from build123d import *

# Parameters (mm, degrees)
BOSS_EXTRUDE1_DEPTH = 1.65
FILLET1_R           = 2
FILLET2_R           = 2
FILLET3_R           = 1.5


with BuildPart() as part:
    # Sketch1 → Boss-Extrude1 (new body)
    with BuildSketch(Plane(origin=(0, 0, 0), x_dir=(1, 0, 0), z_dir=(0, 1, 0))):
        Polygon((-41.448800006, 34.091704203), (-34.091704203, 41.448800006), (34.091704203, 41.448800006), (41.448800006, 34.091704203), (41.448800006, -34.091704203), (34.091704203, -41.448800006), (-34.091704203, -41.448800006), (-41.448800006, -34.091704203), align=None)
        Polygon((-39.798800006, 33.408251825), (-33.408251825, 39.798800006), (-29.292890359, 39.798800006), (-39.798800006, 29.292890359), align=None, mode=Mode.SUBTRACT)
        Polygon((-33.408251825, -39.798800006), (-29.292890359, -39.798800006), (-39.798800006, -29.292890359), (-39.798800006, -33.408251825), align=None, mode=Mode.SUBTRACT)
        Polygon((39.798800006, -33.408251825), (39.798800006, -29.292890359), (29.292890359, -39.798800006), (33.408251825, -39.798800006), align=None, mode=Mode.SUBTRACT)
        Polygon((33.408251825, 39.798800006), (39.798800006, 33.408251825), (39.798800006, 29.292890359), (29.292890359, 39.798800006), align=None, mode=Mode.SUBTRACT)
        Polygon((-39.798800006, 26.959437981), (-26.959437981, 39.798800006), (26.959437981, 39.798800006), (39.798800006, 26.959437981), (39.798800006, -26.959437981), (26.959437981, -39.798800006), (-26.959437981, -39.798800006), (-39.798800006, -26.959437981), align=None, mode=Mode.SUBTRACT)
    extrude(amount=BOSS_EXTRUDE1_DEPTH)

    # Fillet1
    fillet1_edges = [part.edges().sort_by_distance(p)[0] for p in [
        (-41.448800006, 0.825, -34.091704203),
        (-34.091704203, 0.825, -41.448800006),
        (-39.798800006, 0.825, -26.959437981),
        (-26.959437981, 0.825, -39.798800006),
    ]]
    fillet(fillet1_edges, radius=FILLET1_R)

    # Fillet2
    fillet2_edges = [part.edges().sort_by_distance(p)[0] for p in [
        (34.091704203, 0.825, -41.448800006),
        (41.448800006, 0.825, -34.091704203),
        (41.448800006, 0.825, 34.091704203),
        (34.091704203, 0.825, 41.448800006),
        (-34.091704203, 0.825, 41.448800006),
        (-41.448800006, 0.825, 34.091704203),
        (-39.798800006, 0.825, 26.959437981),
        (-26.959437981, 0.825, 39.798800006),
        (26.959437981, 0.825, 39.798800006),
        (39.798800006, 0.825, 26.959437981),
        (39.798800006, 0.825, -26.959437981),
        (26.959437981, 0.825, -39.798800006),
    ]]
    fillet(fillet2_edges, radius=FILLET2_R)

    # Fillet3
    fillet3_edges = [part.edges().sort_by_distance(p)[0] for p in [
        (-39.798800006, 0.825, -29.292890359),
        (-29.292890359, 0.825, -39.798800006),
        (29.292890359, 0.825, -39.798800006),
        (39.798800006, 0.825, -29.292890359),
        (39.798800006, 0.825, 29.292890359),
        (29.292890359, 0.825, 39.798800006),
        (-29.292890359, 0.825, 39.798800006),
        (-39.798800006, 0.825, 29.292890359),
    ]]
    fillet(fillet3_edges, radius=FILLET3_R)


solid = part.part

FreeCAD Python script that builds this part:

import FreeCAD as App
import Part
import Sketcher
from FreeCAD import Vector
Q = App.Units.Quantity


def edges_at(feature, points):
    """Names of the edges that pass closest to the given points."""
    edges = feature.Shape.Edges
    near = lambda p: min(range(len(edges)), key=lambda i: edges[i].distToShape(Part.Vertex(*p))[0])
    return sorted({f"Edge{near(p) + 1}" for p in points})


def add_polygon(sketch, points):
    """Adds a closed chain of lines whose ends are joined by coincident constraints."""
    first, n = sketch.GeometryCount, len(points)
    for a, b in zip(points, points[1:] + points[:1]):
        sketch.addGeometry(Part.LineSegment(App.Vector(*a, 0), App.Vector(*b, 0)), False)
    for i in range(n):
        sketch.addConstraint(Sketcher.Constraint("Coincident", first + i, 2, first + (i + 1) % n, 1))

doc = App.newDocument("Part")
body = doc.addObject("PartDesign::Body", "Body")

# Sketch on XZ plane
sketch1 = doc.addObject("Sketcher::SketchObject", "Sketch")
body.addObject(sketch1)
sketch1.AttachmentSupport = (doc.XZ_Plane, [""])
sketch1.MapMode = "FlatFace"
add_polygon(sketch1, [(-34.1, -41.4), (-41.4, -34.1), (-41.4, 34.1), (-34.1, 41.4), (34.1, 41.4), (41.4, 34.1), (41.4, -34.1), (34.1, -41.4)])  # lines 0-7
add_polygon(sketch1, [(39.8, 33.4), (33.4, 39.8), (29.3, 39.8), (39.8, 29.3)])  # lines 8-11
add_polygon(sketch1, [(-33.4, 39.8), (-39.8, 33.4), (-39.8, 29.3), (-29.3, 39.8)])  # lines 12-15
add_polygon(sketch1, [(33.4, -39.8), (39.8, -33.4), (39.8, -29.3), (29.3, -39.8)])  # lines 16-19
add_polygon(sketch1, [(-39.8, -27), (-27, -39.8), (27, -39.8), (39.8, -27), (39.8, 27), (27, 39.8), (-27, 39.8), (-39.8, 27)])  # lines 20-27
add_polygon(sketch1, [(-39.8, -33.4), (-33.4, -39.8), (-29.3, -39.8), (-39.8, -29.3)])  # lines 28-31
sketch1.addConstraint(Sketcher.Constraint("Vertical", 1))
sketch1.addConstraint(Sketcher.Constraint("Horizontal", 3))
sketch1.addConstraint(Sketcher.Constraint("Vertical", 5))
sketch1.addConstraint(Sketcher.Constraint("Horizontal", 7))
sketch1.addConstraint(Sketcher.Constraint("Horizontal", 9))
sketch1.addConstraint(Sketcher.Constraint("Vertical", 11))
sketch1.addConstraint(Sketcher.Constraint("Vertical", 13))
sketch1.addConstraint(Sketcher.Constraint("Horizontal", 15))
sketch1.addConstraint(Sketcher.Constraint("Vertical", 17))
sketch1.addConstraint(Sketcher.Constraint("Horizontal", 19))
sketch1.addConstraint(Sketcher.Constraint("Horizontal", 21))
sketch1.addConstraint(Sketcher.Constraint("Vertical", 23))
sketch1.addConstraint(Sketcher.Constraint("Horizontal", 25))
sketch1.addConstraint(Sketcher.Constraint("Vertical", 27))
sketch1.addConstraint(Sketcher.Constraint("Horizontal", 29))
sketch1.addConstraint(Sketcher.Constraint("Vertical", 31))
sketch1.addConstraint(Sketcher.Constraint("Symmetric", 0, 2, 4, 2, -1, 1))
sketch1.addConstraint(Sketcher.Constraint("Symmetric", 2, 2, 6, 2, -1, 1))
sketch1.addConstraint(Sketcher.Constraint("Symmetric", 12, 2, 16, 2, -1, 1))
sketch1.addConstraint(Sketcher.Constraint("Symmetric", 14, 2, 18, 2, -1, 1))
sketch1.addConstraint(Sketcher.Constraint("Symmetric", 20, 2, 24, 2, -1, 1))
sketch1.addConstraint(Sketcher.Constraint("Symmetric", 22, 2, 26, 2, -1, 1))
sketch1.addConstraint(Sketcher.Constraint("Symmetric", 8, 2, 28, 2, -1, 1))
sketch1.addConstraint(Sketcher.Constraint("Symmetric", 10, 2, 30, 2, -1, 1))
sketch1.addConstraint(Sketcher.Constraint("Symmetric", 11, 2, 12, 2, -2))
sketch1.addConstraint(Sketcher.Constraint("Symmetric", 9, 2, 14, 2, -2))
sketch1.addConstraint(Sketcher.Constraint("Perpendicular", 0, 2))
sketch1.addConstraint(Sketcher.Constraint("Perpendicular", 2, 4))
sketch1.addConstraint(Sketcher.Constraint("Perpendicular", 4, 6))
sketch1.addConstraint(Sketcher.Constraint("Perpendicular", 6, 8))
sketch1.addConstraint(Sketcher.Constraint("Parallel", 8, 10))
sketch1.addConstraint(Sketcher.Constraint("Perpendicular", 10, 12))
sketch1.addConstraint(Sketcher.Constraint("Parallel", 12, 14))
sketch1.addConstraint(Sketcher.Constraint("Parallel", 14, 16))
sketch1.addConstraint(Sketcher.Constraint("Parallel", 16, 18))
sketch1.addConstraint(Sketcher.Constraint("Perpendicular", 18, 20))
sketch1.addConstraint(Sketcher.Constraint("Perpendicular", 20, 22))
sketch1.addConstraint(Sketcher.Constraint("Perpendicular", 22, 24))
sketch1.addConstraint(Sketcher.Constraint("Perpendicular", 24, 26))
sketch1.addConstraint(Sketcher.Constraint("Perpendicular", 26, 28))
sketch1.addConstraint(Sketcher.Constraint("Parallel", 28, 30))
sketch1.addConstraint(Sketcher.Constraint("Horizontal", 1, 2, 4, 2))
sketch1.addConstraint(Sketcher.Constraint("Horizontal", 10, 2, 13, 2))
sketch1.addConstraint(Sketcher.Constraint("Horizontal", 19, 2, 20, 2))
sketch1.addConstraint(Sketcher.Constraint("Horizontal", 23, 2, 26, 2))
sketch1.addConstraint(Sketcher.Constraint("Vertical", 17, 2, 22, 2))
sketch1.addConstraint(Sketcher.Constraint("Equal", 7, 1))
sketch1.addConstraint(Sketcher.Constraint("Equal", 25, 23))
sketch1.addConstraint(Sketcher.Constraint("DistanceY", 8, 2, 3, 2, Q("1.65 mm")))
sketch1.addConstraint(Sketcher.Constraint("Distance", 8, Q("9.0376 mm")))
sketch1.addConstraint(Sketcher.Constraint("Distance", 10, Q("14.8576 mm")))
sketch1.addConstraint(Sketcher.Constraint("Distance", 20, Q("18.1576 mm")))
sketch1.addConstraint(Sketcher.Constraint("DistanceX", 3, 1, 3, 2, Q("68.183408 mm")))
sketch1.addConstraint(Sketcher.Constraint("DistanceX", 0, 2, -1, 1, Q("41.4488 mm")))
pad1 = doc.addObject("PartDesign::Pad", "Pad")
body.addObject(pad1)
pad1.Profile = sketch1
pad1.Length = 1.65
pad1.Reversed = True
doc.recompute()

fillet = doc.addObject("PartDesign::Fillet", "Fillet")
body.addObject(fillet)
fillet.Base = (pad1, edges_at(pad1, [
    (-41.449, 0.825, -34.092),
    (-34.092, 0.825, -41.449),
    (-39.799, 0.825, -26.959),
    (-26.959, 0.825, -39.799),
]))
fillet.Radius = 2
doc.recompute()

fillet2 = doc.addObject("PartDesign::Fillet", "Fillet001")
body.addObject(fillet2)
fillet2.Base = (fillet, edges_at(fillet, [
    (34.092, 0.825, -41.449),
    (41.449, 0.825, -34.092),
    (41.449, 0.825, 34.092),
    (34.092, 0.825, 41.449),
    (-34.092, 0.825, 41.449),
    (-41.449, 0.825, 34.092),
    (-39.799, 0.825, 26.959),
    (-26.959, 0.825, 39.799),
    (26.959, 0.825, 39.799),
    (39.799, 0.825, 26.959),
    (39.799, 0.825, -26.959),
    (26.959, 0.825, -39.799),
]))
fillet2.Radius = 2
doc.recompute()

fillet3 = doc.addObject("PartDesign::Fillet", "Fillet002")
body.addObject(fillet3)
fillet3.Base = (fillet2, edges_at(fillet2, [
    (-39.799, 0.825, -29.293),
    (-29.293, 0.825, -39.799),
    (29.293, 0.825, -39.799),
    (39.799, 0.825, -29.293),
    (39.799, 0.825, 29.293),
    (29.293, 0.825, 39.799),
    (-29.293, 0.825, 39.799),
    (-39.799, 0.825, 29.293),
]))
fillet3.Radius = 1.5

doc.recompute()
